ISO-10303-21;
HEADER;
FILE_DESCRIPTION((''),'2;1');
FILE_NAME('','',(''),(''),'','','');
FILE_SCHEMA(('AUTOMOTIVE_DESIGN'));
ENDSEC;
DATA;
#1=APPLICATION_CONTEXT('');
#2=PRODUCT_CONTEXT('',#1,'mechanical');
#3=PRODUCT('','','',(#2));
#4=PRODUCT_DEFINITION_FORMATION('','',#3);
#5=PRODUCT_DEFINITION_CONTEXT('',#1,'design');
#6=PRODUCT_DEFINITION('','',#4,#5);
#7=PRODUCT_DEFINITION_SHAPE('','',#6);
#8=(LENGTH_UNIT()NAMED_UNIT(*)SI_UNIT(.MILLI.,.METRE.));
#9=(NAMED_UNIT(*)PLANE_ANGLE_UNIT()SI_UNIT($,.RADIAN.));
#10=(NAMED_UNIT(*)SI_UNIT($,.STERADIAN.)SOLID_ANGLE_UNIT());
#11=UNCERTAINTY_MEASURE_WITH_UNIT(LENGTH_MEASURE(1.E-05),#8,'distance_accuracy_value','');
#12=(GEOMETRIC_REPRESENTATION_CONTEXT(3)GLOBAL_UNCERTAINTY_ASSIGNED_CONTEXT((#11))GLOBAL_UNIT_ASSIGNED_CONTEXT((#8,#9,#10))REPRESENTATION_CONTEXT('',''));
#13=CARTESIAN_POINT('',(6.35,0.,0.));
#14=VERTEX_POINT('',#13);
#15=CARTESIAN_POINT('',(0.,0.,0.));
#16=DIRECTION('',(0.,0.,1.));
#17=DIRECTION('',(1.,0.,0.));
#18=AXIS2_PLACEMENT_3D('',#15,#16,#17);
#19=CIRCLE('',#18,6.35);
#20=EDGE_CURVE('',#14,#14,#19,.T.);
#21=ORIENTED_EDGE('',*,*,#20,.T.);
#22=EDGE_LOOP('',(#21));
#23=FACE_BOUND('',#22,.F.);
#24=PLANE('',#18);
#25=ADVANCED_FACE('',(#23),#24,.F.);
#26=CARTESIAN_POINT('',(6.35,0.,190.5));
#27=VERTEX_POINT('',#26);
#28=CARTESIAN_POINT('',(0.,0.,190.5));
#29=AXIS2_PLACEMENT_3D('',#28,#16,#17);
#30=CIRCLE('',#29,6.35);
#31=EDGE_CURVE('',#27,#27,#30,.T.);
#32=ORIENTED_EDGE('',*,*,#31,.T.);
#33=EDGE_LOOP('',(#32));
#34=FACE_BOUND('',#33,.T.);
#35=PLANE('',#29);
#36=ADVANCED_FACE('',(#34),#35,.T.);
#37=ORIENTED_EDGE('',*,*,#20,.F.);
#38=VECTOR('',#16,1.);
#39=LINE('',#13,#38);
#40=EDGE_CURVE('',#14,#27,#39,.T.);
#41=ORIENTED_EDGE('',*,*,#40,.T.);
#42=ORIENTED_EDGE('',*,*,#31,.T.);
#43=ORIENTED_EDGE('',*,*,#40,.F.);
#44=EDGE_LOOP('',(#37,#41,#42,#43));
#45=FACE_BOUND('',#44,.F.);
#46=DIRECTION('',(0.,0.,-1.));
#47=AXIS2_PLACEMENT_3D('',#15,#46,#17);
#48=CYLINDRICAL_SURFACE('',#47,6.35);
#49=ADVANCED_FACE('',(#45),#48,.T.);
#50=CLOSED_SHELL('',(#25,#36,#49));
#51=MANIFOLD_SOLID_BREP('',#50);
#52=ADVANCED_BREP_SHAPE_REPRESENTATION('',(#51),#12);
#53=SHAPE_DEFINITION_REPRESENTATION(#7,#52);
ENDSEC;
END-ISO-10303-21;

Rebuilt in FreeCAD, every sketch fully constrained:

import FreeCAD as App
import Part
import Sketcher
Q = App.Units.Quantity

doc = App.newDocument("Part")
body = doc.addObject("PartDesign::Body", "Body")

# Sketch on XY plane
sketch1 = body.newObject("Sketcher::SketchObject", "Sketch")
sketch1.AttachmentSupport = (doc.getObject("XY_Plane"), [""])
sketch1.MapMode = "FlatFace"
sketch1.addGeometry(Part.Circle(App.Vector(0, 0, 0), App.Vector(0, 0, 1), 6), False)
sketch1.addConstraint([
    Sketcher.Constraint("Coincident", 0, 3, -1, 1),
    Sketcher.Constraint("Diameter", 0, Q("0.5 in")),
])
pad1 = body.newObject("PartDesign::Pad", "Pad")
pad1.Profile = sketch1
pad1.Length = Q("7.5 in")

doc.recompute()
